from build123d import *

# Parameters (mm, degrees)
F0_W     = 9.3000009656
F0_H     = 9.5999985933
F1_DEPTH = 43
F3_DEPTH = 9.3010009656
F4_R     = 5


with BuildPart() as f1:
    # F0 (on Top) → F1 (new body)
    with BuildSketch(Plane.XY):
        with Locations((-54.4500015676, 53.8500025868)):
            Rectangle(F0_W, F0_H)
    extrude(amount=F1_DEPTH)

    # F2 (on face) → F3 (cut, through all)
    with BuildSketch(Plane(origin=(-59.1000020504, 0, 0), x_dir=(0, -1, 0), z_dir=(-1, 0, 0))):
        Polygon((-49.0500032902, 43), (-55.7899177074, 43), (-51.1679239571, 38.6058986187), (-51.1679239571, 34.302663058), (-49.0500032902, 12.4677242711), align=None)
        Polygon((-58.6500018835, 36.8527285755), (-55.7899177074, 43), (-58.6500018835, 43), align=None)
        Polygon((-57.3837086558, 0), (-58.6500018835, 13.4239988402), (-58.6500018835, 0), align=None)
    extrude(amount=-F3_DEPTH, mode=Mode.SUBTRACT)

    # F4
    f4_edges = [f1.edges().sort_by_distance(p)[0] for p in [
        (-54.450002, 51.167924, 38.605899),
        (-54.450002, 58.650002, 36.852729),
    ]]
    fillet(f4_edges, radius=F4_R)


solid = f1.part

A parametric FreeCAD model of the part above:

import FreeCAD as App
import Part
import Sketcher

V = App.Vector


def edges_at(feature, points):
    """Names of the edges that pass closest to the given points."""
    edges = feature.Shape.Edges
    near = lambda p: min(range(len(edges)), key=lambda i: edges[i].distToShape(Part.Vertex(*p))[0])
    return sorted({f"Edge{near(p) + 1}" for p in points})


def add_polygon(sketch, points):
    """Adds a closed chain of lines whose ends are joined by coincident constraints."""
    first, n = sketch.GeometryCount, len(points)
    for a, b in zip(points, points[1:] + points[:1]):
        sketch.addGeometry(Part.LineSegment(App.Vector(*a, 0), App.Vector(*b, 0)), False)
    for i in range(n):
        sketch.addConstraint(Sketcher.Constraint("Coincident", first + i, 2, first + (i + 1) % n, 1))

doc = App.newDocument("Part")
body = doc.addObject("PartDesign::Body", "Body")

# Sketch on XY plane
sketch1 = body.newObject("Sketcher::SketchObject", "Sketch")
sketch1.AttachmentSupport = (doc.getObject("XY_Plane"), [""])
sketch1.MapMode = "FlatFace"
add_polygon(sketch1, [(-59, 59), (-59, 49), (-50, 49), (-50, 59)])  # lines 0-3
sketch1.addConstraint([
    Sketcher.Constraint("Vertical", 0),
    Sketcher.Constraint("Horizontal", 1),
    Sketcher.Constraint("Vertical", 2),
    Sketcher.Constraint("Horizontal", 3),
    Sketcher.Constraint("DistanceX", 1, 1, 1, 2, 9.300001),
    Sketcher.Constraint("DistanceY", 0, 2, 0, 1, 9.599999),
    Sketcher.Constraint("DistanceX", 1, 2, -1, 1, 49.800001),
    Sketcher.Constraint("DistanceY", -1, 1, 2, 2, 58.650002),
])
pad1 = body.newObject("PartDesign::Pad", "Pad")
pad1.Profile = sketch1
pad1.Length = 43

# Sketch on YZ plane
sketch2 = body.newObject("Sketcher::SketchObject", "Sketch001")
sketch2.AttachmentSupport = (doc.getObject("YZ_Plane"), [""])
sketch2.MapMode = "FlatFace"
sketch2.AttachmentOffset = App.Placement(V(0, 0, -59.100002), App.Rotation())
add_polygon(sketch2, [(49.1, 43), (55.8, 43), (51.2, 38.6), (51.2, 34.3), (49.1, 12.5)])  # lines 0-4
add_polygon(sketch2, [(58.7, 36.9), (55.8, 43), (58.7, 43)])  # lines 5-7
add_polygon(sketch2, [(57.4, 0), (58.7, 13.4), (58.7, 0)])  # lines 8-10
sketch2.addConstraint([
    Sketcher.Constraint("Horizontal", 0),
    Sketcher.Constraint("Vertical", 2),
    Sketcher.Constraint("Vertical", 4),
    Sketcher.Constraint("Horizontal", 6),
    Sketcher.Constraint("Vertical", 7),
    Sketcher.Constraint("Vertical", 9),
    Sketcher.Constraint("Horizontal", 10),
    Sketcher.Constraint("Coincident", 5, 2, 0, 2),
    Sketcher.Constraint("PointOnObject", 9, 2, -1),
    Sketcher.Constraint("Vertical", 7, 2, 8, 2),
    Sketcher.Constraint("DistanceY", -1, 1, 0, 2, 43.0),
    Sketcher.Constraint("DistanceX", 4, 2, 6, 2, 9.599999),
    Sketcher.Constraint("DistanceY", 9, 2, 9, 1, 13.423999),
    Sketcher.Constraint("DistanceX", -1, 1, 6, 2, 58.650002),
    Sketcher.Constraint("DistanceY", 7, 2, 7, 1, 6.147271),
    Sketcher.Constraint("DistanceY", -1, 1, 1, 2, 38.605899),
    Sketcher.Constraint("Distance", 1, 6.377378),
    Sketcher.Constraint("Distance", 8, 13.483592),
    Sketcher.Constraint("DistanceX", 0, 1, 0, 2, 6.739914),
    Sketcher.Constraint("DistanceY", 2, 2, 2, 1, 4.303236),
    Sketcher.Constraint("DistanceY", 4, 1, 4, 2, 30.532276),
])
pocket1 = body.newObject("PartDesign::Pocket", "Pocket")
pocket1.Profile = sketch2
pocket1.Type = "ThroughAll"
pocket1.Reversed = True
doc.recompute()

fillet = body.newObject("PartDesign::Fillet", "Fillet")
fillet.Base = (pocket1, edges_at(pocket1, [(-54.45, 51.168, 38.606), (-54.45, 58.65, 36.853)]))
fillet.Radius = 5

doc.recompute()
